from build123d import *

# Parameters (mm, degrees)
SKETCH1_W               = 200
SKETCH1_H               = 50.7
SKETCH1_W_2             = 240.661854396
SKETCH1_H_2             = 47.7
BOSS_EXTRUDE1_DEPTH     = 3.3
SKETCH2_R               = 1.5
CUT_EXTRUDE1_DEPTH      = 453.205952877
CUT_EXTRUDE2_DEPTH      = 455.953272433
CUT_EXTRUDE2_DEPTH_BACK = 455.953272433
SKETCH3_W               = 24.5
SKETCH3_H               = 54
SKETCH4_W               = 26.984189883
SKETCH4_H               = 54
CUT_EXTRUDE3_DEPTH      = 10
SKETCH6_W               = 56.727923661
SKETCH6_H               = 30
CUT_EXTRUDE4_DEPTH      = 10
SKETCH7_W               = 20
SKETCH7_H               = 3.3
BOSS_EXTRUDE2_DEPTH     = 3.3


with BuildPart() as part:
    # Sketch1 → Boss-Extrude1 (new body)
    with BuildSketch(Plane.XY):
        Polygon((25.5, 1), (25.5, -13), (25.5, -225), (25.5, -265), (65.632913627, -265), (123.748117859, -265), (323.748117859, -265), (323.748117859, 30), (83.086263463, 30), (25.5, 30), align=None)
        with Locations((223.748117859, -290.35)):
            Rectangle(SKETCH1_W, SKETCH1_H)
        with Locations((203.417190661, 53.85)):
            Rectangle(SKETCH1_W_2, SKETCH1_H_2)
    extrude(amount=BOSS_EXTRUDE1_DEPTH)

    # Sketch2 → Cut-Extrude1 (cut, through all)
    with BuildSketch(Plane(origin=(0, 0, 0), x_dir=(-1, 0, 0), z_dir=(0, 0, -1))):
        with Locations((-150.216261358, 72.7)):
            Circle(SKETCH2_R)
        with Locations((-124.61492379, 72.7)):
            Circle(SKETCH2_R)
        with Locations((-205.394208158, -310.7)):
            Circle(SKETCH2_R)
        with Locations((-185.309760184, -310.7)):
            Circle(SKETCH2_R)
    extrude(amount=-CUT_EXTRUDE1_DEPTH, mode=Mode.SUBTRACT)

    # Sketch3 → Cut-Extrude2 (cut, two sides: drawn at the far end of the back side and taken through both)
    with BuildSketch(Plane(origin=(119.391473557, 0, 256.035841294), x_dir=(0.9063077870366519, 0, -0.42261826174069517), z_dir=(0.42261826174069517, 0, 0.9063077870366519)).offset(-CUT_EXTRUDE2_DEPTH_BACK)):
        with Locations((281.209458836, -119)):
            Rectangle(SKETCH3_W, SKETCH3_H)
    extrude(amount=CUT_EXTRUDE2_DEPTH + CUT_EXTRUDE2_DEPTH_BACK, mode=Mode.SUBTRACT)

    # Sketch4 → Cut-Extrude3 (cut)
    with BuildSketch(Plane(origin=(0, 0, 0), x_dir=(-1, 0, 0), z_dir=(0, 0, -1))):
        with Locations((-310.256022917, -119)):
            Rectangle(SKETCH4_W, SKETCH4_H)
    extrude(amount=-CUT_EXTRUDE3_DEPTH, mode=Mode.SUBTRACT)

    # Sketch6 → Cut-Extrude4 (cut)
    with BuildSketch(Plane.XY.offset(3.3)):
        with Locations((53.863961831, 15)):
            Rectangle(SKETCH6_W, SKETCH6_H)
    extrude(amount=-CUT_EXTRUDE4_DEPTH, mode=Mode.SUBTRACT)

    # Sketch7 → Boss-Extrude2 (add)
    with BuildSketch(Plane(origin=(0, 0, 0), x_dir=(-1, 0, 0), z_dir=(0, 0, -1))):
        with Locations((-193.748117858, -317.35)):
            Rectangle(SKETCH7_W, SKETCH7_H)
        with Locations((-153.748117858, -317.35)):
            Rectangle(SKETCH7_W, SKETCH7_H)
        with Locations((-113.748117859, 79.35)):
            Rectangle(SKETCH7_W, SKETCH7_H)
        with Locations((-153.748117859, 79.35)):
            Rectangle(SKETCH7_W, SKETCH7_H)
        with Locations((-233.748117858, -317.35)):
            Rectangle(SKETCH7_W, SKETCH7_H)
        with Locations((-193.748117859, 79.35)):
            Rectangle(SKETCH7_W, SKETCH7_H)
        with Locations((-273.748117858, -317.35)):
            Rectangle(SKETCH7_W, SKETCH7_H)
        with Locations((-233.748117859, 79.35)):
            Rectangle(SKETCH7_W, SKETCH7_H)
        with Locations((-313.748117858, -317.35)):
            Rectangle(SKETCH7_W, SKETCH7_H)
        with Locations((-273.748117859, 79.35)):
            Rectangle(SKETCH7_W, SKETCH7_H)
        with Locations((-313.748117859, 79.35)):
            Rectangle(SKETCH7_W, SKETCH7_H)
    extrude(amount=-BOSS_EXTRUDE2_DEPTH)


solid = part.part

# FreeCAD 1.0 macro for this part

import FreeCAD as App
import Part
import Sketcher

V = App.Vector
Q = App.Units.Quantity


def add_polygon(sketch, points):
    """Adds a closed chain of lines whose ends are joined by coincident constraints."""
    first, n = sketch.GeometryCount, len(points)
    for a, b in zip(points, points[1:] + points[:1]):
        sketch.addGeometry(Part.LineSegment(App.Vector(*a, 0), App.Vector(*b, 0)), False)
    for i in range(n):
        sketch.addConstraint(Sketcher.Constraint("Coincident", first + i, 2, first + (i + 1) % n, 1))

doc = App.newDocument("Part")
params = doc.addObject("Spreadsheet::Sheet", "Params")
for row, (alias, value) in enumerate([
    ("sketch1_width", "200 mm"),
    ("sketch1_height", "295 mm"),
    ("sketch1_height2", "50.7 mm"),
    ("sketch1_height3", "393.4 mm"),
    ("pad1_length", "3.3 mm"),
    ("sketch2_diameter", "3 mm"),
    ("sketch3_height", "54 mm"),
    ("sketch3_width", "24.5 mm"),
    ("sketch4_height", "54 mm"),
    ("pocket3_length", "10 mm"),
    ("sketch5_height", "30 mm"),
    ("pocket4_length", "10 mm"),
    ("sketch6_width", "20 mm"),
    ("sketch6_height", "3.3 mm"),
    ("pad2_length", "3.3 mm"),
], start=1):
    params.set(f"A{row}", alias)
    params.set(f"B{row}", "=" + value)
    params.setAlias(f"B{row}", alias)

body = doc.addObject("PartDesign::Body", "Body")

# Sketch on XY plane
sketch1 = body.newObject("Sketcher::SketchObject", "Sketch")
sketch1.AttachmentSupport = (doc.getObject("XY_Plane"), [""])
sketch1.MapMode = "FlatFace"
add_polygon(sketch1, [(25.5, -265), (123.748118, -265), (123.748118, -315.7), (323.748118, -315.7), (323.748118, 77.7), (83.086263, 77.7), (83.086263, 30), (25.5, 30)])  # lines 0-7
sketch1.addConstraint([
    Sketcher.Constraint("Horizontal", 0),
    Sketcher.Constraint("Vertical", 1),
    Sketcher.Constraint("Horizontal", 2),
    Sketcher.Constraint("Vertical", 3),
    Sketcher.Constraint("Horizontal", 4),
    Sketcher.Constraint("Vertical", 5),
    Sketcher.Constraint("Horizontal", 6),
    Sketcher.Constraint("Vertical", 7),
    Sketcher.Constraint("DistanceX", 2, 1, 2, 2, Q("200 mm")),
    Sketcher.Constraint("DistanceY", 7, 2, 7, 1, Q("295 mm")),
    Sketcher.Constraint("DistanceY", 1, 2, 1, 1, Q("50.7 mm")),
    Sketcher.Constraint("DistanceY", 3, 1, 3, 2, Q("393.4 mm")),
    Sketcher.Constraint("DistanceY", 0, 2, -1, 1, Q("265 mm")),
    Sketcher.Constraint("DistanceX", -1, 1, 6, 2, Q("25.5 mm")),
    Sketcher.Constraint("DistanceX", 0, 1, 0, 2, Q("98.248118 mm")),
    Sketcher.Constraint("DistanceX", 4, 2, 4, 1, Q("240.661854 mm")),
])
sketch1.setExpression("Constraints[16]", "Params.sketch1_width")
sketch1.setExpression("Constraints[17]", "Params.sketch1_height")
sketch1.setExpression("Constraints[18]", "Params.sketch1_height2")
sketch1.setExpression("Constraints[19]", "Params.sketch1_height3")
pad1 = body.newObject("PartDesign::Pad", "Pad")
pad1.Profile = sketch1
pad1.setExpression("Length", "Params.pad1_length")

# Sketch on XY plane
sketch2 = body.newObject("Sketcher::SketchObject", "Sketch001")
sketch2.AttachmentSupport = (doc.getObject("XY_Plane"), [""])
sketch2.MapMode = "FlatFace"
sketch2.addGeometry([
    Part.Circle(V(150.216261, 72.7, 0), V(0, 0, 1), 1.5),
    Part.Circle(V(124.614924, 72.7, 0), V(0, 0, 1), 1.5),
    Part.Circle(V(205.394208, -310.7, 0), V(0, 0, 1), 1.5),
    Part.Circle(V(185.30976, -310.7, 0), V(0, 0, 1), 1.5),
], False)
sketch2.addConstraint([
    Sketcher.Constraint("Equal", 0, 1),
    Sketcher.Constraint("Equal", 1, 2),
    Sketcher.Constraint("Equal", 2, 3),
    Sketcher.Constraint("Horizontal", 0, 3, 1, 3),
    Sketcher.Constraint("Horizontal", 2, 3, 3, 3),
    Sketcher.Constraint("Diameter", 0, Q("3 mm")),
    Sketcher.Constraint("DistanceY", -1, 1, 0, 3, Q("72.7 mm")),
    Sketcher.Constraint("DistanceY", 2, 3, -1, 1, Q("310.7 mm")),
    Sketcher.Constraint("DistanceX", 0, 3, 3, 3, Q("35.093499 mm")),
    Sketcher.Constraint("DistanceX", -1, 1, 0, 3, Q("150.216261 mm")),
    Sketcher.Constraint("DistanceX", -1, 1, 2, 3, Q("205.394208 mm")),
    Sketcher.Constraint("DistanceX", -1, 1, 1, 3, Q("124.614924 mm")),
])
sketch2.setExpression("Constraints[5]", "Params.sketch2_diameter")
pocket1 = body.newObject("PartDesign::Pocket", "Pocket")
pocket1.Profile = sketch2
pocket1.Type = "ThroughAll"
pocket1.Reversed = True

# Sketch on an angled plane
sketch3 = body.newObject("Sketcher::SketchObject", "Sketch002")
sketch3.Placement = App.Placement(V(119.391474, 0, 256.035841), App.Rotation(V(0.906307787, 0, -0.422618262), V(0, 1, 0), V(0.422618262, 0, 0.906307787), "ZXY"))
add_polygon(sketch3, [(268.959459, -92), (268.959459, -146), (293.459459, -146), (293.459459, -92)])  # lines 0-3
sketch3.addConstraint([
    Sketcher.Constraint("Vertical", 0),
    Sketcher.Constraint("Horizontal", 1),
    Sketcher.Constraint("Vertical", 2),
    Sketcher.Constraint("Horizontal", 3),
    Sketcher.Constraint("DistanceY", 0, 2, 0, 1, Q("54 mm")),
    Sketcher.Constraint("DistanceX", 1, 1, 1, 2, Q("24.5 mm")),
    Sketcher.Constraint("DistanceY", 0, 2, -1, 1, Q("146 mm")),
    Sketcher.Constraint("DistanceX", -1, 1, 0, 2, Q("268.959459 mm")),
])
sketch3.setExpression("Constraints[8]", "Params.sketch3_height")
sketch3.setExpression("Constraints[9]", "Params.sketch3_width")
pocket2 = body.newObject("PartDesign::Pocket", "Pocket001")
pocket2.Profile = sketch3
pocket2.Type = "ThroughAll"
pocket2.Midplane = True

# Sketch on XY plane
sketch4 = body.newObject("Sketcher::SketchObject", "Sketch003")
sketch4.AttachmentSupport = (doc.getObject("XY_Plane"), [""])
sketch4.MapMode = "FlatFace"
add_polygon(sketch4, [(323.748118, -92), (323.748118, -146), (296.763928, -146), (296.763928, -92)])  # lines 0-3
sketch4.addConstraint([
    Sketcher.Constraint("Vertical", 0),
    Sketcher.Constraint("Horizontal", 1),
    Sketcher.Constraint("Vertical", 2),
    Sketcher.Constraint("Horizontal", 3),
    Sketcher.Constraint("DistanceY", 0, 2, 0, 1, Q("54 mm")),
    Sketcher.Constraint("DistanceY", 0, 2, -1, 1, Q("146 mm")),
    Sketcher.Constraint("DistanceX", 1, 2, 1, 1, Q("26.98419 mm")),
    Sketcher.Constraint("DistanceX", -1, 1, 0, 2, Q("323.748118 mm")),
])
sketch4.setExpression("Constraints[8]", "Params.sketch4_height")
pocket3 = body.newObject("PartDesign::Pocket", "Pocket002")
pocket3.Profile = sketch4
pocket3.setExpression("Length", "Params.pocket3_length")
pocket3.Reversed = True

# Sketch on XY plane
sketch5 = body.newObject("Sketcher::SketchObject", "Sketch004")
sketch5.AttachmentSupport = (doc.getObject("XY_Plane"), [""])
sketch5.MapMode = "FlatFace"
sketch5.AttachmentOffset = App.Placement(V(0, 0, 3.3), App.Rotation())
add_polygon(sketch5, [(25.5, 30), (25.5, 0), (82.227924, 0), (82.227924, 30)])  # lines 0-3
sketch5.addConstraint([
    Sketcher.Constraint("Vertical", 0),
    Sketcher.Constraint("Horizontal", 1),
    Sketcher.Constraint("Vertical", 2),
    Sketcher.Constraint("Horizontal", 3),
    Sketcher.Constraint("PointOnObject", 0, 2, -1),
    Sketcher.Constraint("DistanceY", 0, 2, 0, 1, Q("30 mm")),
    Sketcher.Constraint("DistanceX", -1, 1, 0, 2, Q("25.5 mm")),
    Sketcher.Constraint("DistanceX", 1, 1, 1, 2, Q("56.727924 mm")),
])
sketch5.setExpression("Constraints[9]", "Params.sketch5_height")
pocket4 = body.newObject("PartDesign::Pocket", "Pocket003")
pocket4.Profile = sketch5
pocket4.setExpression("Length", "Params.pocket4_length")

# Sketch on XY plane
sketch6 = body.newObject("Sketcher::SketchObject", "Sketch005")
sketch6.AttachmentSupport = (doc.getObject("XY_Plane"), [""])
sketch6.MapMode = "FlatFace"
add_polygon(sketch6, [(203.748118, -315.7), (203.748118, -319), (183.748118, -319), (183.748118, -315.7)])  # lines 0-3
add_polygon(sketch6, [(163.748118, -315.7), (163.748118, -319), (143.748118, -319), (143.748118, -315.7)])  # lines 4-7
add_polygon(sketch6, [(123.748118, 81), (123.748118, 77.7), (103.748118, 77.7), (103.748118, 81)])  # lines 8-11
add_polygon(sketch6, [(163.748118, 81), (163.748118, 77.7), (143.748118, 77.7), (143.748118, 81)])  # lines 12-15
add_polygon(sketch6, [(243.748118, -315.7), (243.748118, -319), (223.748118, -319), (223.748118, -315.7)])  # lines 16-19
add_polygon(sketch6, [(203.748118, 81), (203.748118, 77.7), (183.748118, 77.7), (183.748118, 81)])  # lines 20-23
add_polygon(sketch6, [(283.748118, -315.7), (283.748118, -319), (263.748118, -319), (263.748118, -315.7)])  # lines 24-27
add_polygon(sketch6, [(243.748118, 81), (243.748118, 77.7), (223.748118, 77.7), (223.748118, 81)])  # lines 28-31
add_polygon(sketch6, [(323.748118, -315.7), (323.748118, -319), (303.748118, -319), (303.748118, -315.7)])  # lines 32-35
add_polygon(sketch6, [(283.748118, 81), (283.748118, 77.7), (263.748118, 77.7), (263.748118, 81)])  # lines 36-39
add_polygon(sketch6, [(323.748118, 81), (323.748118, 77.7), (303.748118, 77.7), (303.748118, 81)])  # lines 40-43
sketch6.addConstraint([
    Sketcher.Constraint("Vertical", 0),
    Sketcher.Constraint("Horizontal", 1),
    Sketcher.Constraint("Vertical", 2),
    Sketcher.Constraint("Horizontal", 3),
    Sketcher.Constraint("Vertical", 4),
    Sketcher.Constraint("Horizontal", 5),
    Sketcher.Constraint("Vertical", 6),
    Sketcher.Constraint("Horizontal", 7),
    Sketcher.Constraint("Vertical", 8),
    Sketcher.Constraint("Horizontal", 9),
    Sketcher.Constraint("Vertical", 10),
    Sketcher.Constraint("Horizontal", 11),
    Sketcher.Constraint("Vertical", 12),
    Sketcher.Constraint("Horizontal", 13),
    Sketcher.Constraint("Vertical", 14),
    Sketcher.Constraint("Horizontal", 15),
    Sketcher.Constraint("Vertical", 16),
    Sketcher.Constraint("Horizontal", 17),
    Sketcher.Constraint("Vertical", 18),
    Sketcher.Constraint("Horizontal", 19),
    Sketcher.Constraint("Vertical", 20),
    Sketcher.Constraint("Horizontal", 21),
    Sketcher.Constraint("Vertical", 22),
    Sketcher.Constraint("Horizontal", 23),
    Sketcher.Constraint("Vertical", 24),
    Sketcher.Constraint("Horizontal", 25),
    Sketcher.Constraint("Vertical", 26),
    Sketcher.Constraint("Horizontal", 27),
    Sketcher.Constraint("Vertical", 28),
    Sketcher.Constraint("Horizontal", 29),
    Sketcher.Constraint("Vertical", 30),
    Sketcher.Constraint("Horizontal", 31),
    Sketcher.Constraint("Vertical", 32),
    Sketcher.Constraint("Horizontal", 33),
    Sketcher.Constraint("Vertical", 34),
    Sketcher.Constraint("Horizontal", 35),
    Sketcher.Constraint("Vertical", 36),
    Sketcher.Constraint("Horizontal", 37),
    Sketcher.Constraint("Vertical", 38),
    Sketcher.Constraint("Horizontal", 39),
    Sketcher.Constraint("Vertical", 40),
    Sketcher.Constraint("Horizontal", 41),
    Sketcher.Constraint("Vertical", 42),
    Sketcher.Constraint("Horizontal", 43),
    Sketcher.Constraint("Horizontal", 1, 2, 4, 2),
    Sketcher.Constraint("Horizontal", 3, 2, 6, 2),
    Sketcher.Constraint("Horizontal", 9, 2, 12, 2),
    Sketcher.Constraint("Horizontal", 11, 2, 14, 2),
    Sketcher.Constraint("Horizontal", 5, 2, 16, 2),
    Sketcher.Constraint("Horizontal", 7, 2, 18, 2),
    Sketcher.Constraint("Horizontal", 13, 2, 20, 2),
    Sketcher.Constraint("Horizontal", 15, 2, 22, 2),
    Sketcher.Constraint("Horizontal", 17, 2, 24, 2),
    Sketcher.Constraint("Horizontal", 19, 2, 26, 2),
    Sketcher.Constraint("Horizontal", 21, 2, 28, 2),
    Sketcher.Constraint("Horizontal", 23, 2, 30, 2),
    Sketcher.Constraint("Horizontal", 25, 2, 32, 2),
    Sketcher.Constraint("Horizontal", 27, 2, 34, 2),
    Sketcher.Constraint("Horizontal", 29, 2, 36, 2),
    Sketcher.Constraint("Horizontal", 31, 2, 38, 2),
    Sketcher.Constraint("Horizontal", 37, 2, 40, 2),
    Sketcher.Constraint("Horizontal", 39, 2, 42, 2),
    Sketcher.Constraint("Vertical", 7, 2, 12, 2),
    Sketcher.Constraint("Vertical", 6, 2, 13, 2),
    Sketcher.Constraint("Vertical", 3, 2, 20, 2),
    Sketcher.Constraint("Vertical", 2, 2, 21, 2),
    Sketcher.Constraint("Vertical", 19, 2, 28, 2),
    Sketcher.Constraint("Vertical", 18, 2, 29, 2),
    Sketcher.Constraint("Vertical", 27, 2, 36, 2),
    Sketcher.Constraint("Vertical", 26, 2, 37, 2),
    Sketcher.Constraint("Vertical", 35, 2, 40, 2),
    Sketcher.Constraint("Vertical", 34, 2, 41, 2),
    Sketcher.Constraint("Equal", 3, 5),
    Sketcher.Constraint("Equal", 7, 9),
    Sketcher.Constraint("Equal", 15, 17),
    Sketcher.Constraint("Equal", 23, 25),
    Sketcher.Constraint("Equal", 31, 33),
    Sketcher.Constraint("Equal", 6, 8),
    Sketcher.Constraint("DistanceX", 1, 2, 1, 1, Q("20 mm")),
    Sketcher.Constraint("DistanceY", 0, 2, 0, 1, Q("3.3 mm")),
    Sketcher.Constraint("DistanceY", 0, 2, -1, 1, Q("319 mm")),
    Sketcher.Constraint("DistanceY", -1, 1, 10, 2, Q("81 mm")),
    Sketcher.Constraint("DistanceX", 4, 2, 1, 2, Q("20 mm")),
    Sketcher.Constraint("DistanceX", 8, 2, 6, 2, Q("20 mm")),
    Sketcher.Constraint("DistanceX", 0, 2, 16, 2, Q("40 mm")),
    Sketcher.Constraint("DistanceX", 16, 2, 24, 2, Q("40 mm")),
    Sketcher.Constraint("DistanceX", 24, 2, 32, 2, Q("40 mm")),
    Sketcher.Constraint("DistanceX", -1, 1, 0, 2, Q("203.748118 mm")),
])
sketch6.setExpression("Constraints[122]", "Params.sketch6_width")
sketch6.setExpression("Constraints[123]", "Params.sketch6_height")
pad2 = body.newObject("PartDesign::Pad", "Pad001")
pad2.Profile = sketch6
pad2.setExpression("Length", "Params.pad2_length")

doc.recompute()
